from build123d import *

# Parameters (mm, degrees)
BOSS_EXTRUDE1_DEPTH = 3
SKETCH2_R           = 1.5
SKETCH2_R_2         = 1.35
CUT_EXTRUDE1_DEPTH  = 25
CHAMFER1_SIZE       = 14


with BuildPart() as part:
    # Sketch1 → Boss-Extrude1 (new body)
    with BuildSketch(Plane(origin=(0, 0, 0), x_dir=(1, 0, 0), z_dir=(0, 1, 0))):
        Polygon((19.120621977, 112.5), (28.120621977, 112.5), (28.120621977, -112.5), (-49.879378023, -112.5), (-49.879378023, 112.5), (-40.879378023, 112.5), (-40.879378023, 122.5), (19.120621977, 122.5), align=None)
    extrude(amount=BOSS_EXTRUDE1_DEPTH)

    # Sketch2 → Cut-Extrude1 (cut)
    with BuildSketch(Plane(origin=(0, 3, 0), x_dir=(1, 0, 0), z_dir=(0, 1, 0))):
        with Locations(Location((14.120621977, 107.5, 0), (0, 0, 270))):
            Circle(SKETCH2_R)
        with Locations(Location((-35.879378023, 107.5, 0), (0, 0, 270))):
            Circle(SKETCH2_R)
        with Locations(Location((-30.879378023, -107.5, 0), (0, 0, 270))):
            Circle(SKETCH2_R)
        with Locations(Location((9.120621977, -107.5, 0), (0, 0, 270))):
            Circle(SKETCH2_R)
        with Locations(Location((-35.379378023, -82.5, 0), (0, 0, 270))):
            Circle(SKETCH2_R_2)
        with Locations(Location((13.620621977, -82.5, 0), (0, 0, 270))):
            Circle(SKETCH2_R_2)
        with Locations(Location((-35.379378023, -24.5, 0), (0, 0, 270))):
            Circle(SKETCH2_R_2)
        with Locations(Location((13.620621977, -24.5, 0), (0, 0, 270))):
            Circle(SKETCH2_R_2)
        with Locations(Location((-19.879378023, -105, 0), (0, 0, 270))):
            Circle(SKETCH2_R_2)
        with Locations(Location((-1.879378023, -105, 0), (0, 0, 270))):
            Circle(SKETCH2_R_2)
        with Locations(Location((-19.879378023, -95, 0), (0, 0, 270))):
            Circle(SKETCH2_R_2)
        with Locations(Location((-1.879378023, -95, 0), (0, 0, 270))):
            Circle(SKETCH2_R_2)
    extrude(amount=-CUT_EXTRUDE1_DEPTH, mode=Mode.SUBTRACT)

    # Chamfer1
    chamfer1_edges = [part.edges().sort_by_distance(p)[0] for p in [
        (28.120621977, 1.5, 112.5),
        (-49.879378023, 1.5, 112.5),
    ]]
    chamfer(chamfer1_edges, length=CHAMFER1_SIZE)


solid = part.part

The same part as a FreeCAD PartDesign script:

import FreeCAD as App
import Part
import Sketcher
from FreeCAD import Vector


def edges_at(feature, points):
    """Names of the edges that pass closest to the given points."""
    edges = feature.Shape.Edges
    near = lambda p: min(range(len(edges)), key=lambda i: edges[i].distToShape(Part.Vertex(*p))[0])
    return sorted({f"Edge{near(p) + 1}" for p in points})

doc = App.newDocument("Part")
body = doc.addObject("PartDesign::Body", "Body")

sketch1 = body.newObject("Sketcher::SketchObject", "Sketch")
sketch1.AttachmentSupport = (doc.getObject("XZ_Plane"), [""])
sketch1.MapMode = "FlatFace"
sketch1.addGeometry(Part.LineSegment(Vector(28, -112, 0), Vector(19, -112, 0)), False)
sketch1.addGeometry(Part.LineSegment(Vector(19, -112, 0), Vector(19, -122, 0)), False)
sketch1.addGeometry(Part.LineSegment(Vector(19, -122, 0), Vector(-41, -122, 0)), False)
sketch1.addGeometry(Part.LineSegment(Vector(-41, -122, 0), Vector(-41, -112, 0)), False)
sketch1.addGeometry(Part.LineSegment(Vector(-41, -112, 0), Vector(-50, -112, 0)), False)
sketch1.addGeometry(Part.LineSegment(Vector(-50, -112, 0), Vector(-50, 112, 0)), False)
sketch1.addGeometry(Part.LineSegment(Vector(-50, 112, 0), Vector(28, 112, 0)), False)
sketch1.addGeometry(Part.LineSegment(Vector(28, 112, 0), Vector(28, -112, 0)), False)
sketch1.addConstraint(Sketcher.Constraint("Coincident", 0, 2, 1, 1))
sketch1.addConstraint(Sketcher.Constraint("Coincident", 1, 2, 2, 1))
sketch1.addConstraint(Sketcher.Constraint("Coincident", 2, 2, 3, 1))
sketch1.addConstraint(Sketcher.Constraint("Coincident", 3, 2, 4, 1))
sketch1.addConstraint(Sketcher.Constraint("Coincident", 4, 2, 5, 1))
sketch1.addConstraint(Sketcher.Constraint("Coincident", 5, 2, 6, 1))
sketch1.addConstraint(Sketcher.Constraint("Coincident", 6, 2, 7, 1))
sketch1.addConstraint(Sketcher.Constraint("Coincident", 7, 2, 0, 1))
sketch1.addConstraint(Sketcher.Constraint("Horizontal", 0))
sketch1.addConstraint(Sketcher.Constraint("Vertical", 1))
sketch1.addConstraint(Sketcher.Constraint("Horizontal", 2))
sketch1.addConstraint(Sketcher.Constraint("Vertical", 3))
sketch1.addConstraint(Sketcher.Constraint("Horizontal", 4))
sketch1.addConstraint(Sketcher.Constraint("Vertical", 5))
sketch1.addConstraint(Sketcher.Constraint("Horizontal", 6))
sketch1.addConstraint(Sketcher.Constraint("Vertical", 7))
sketch1.addConstraint(Sketcher.Constraint("Horizontal", 0, 2, 3, 2))
sketch1.addConstraint(Sketcher.Constraint("Equal", 0, 4))
sketch1.addConstraint(Sketcher.Constraint("DistanceX", 0, 2, 0, 1, 9.0))
sketch1.addConstraint(Sketcher.Constraint("DistanceX", 2, 2, 2, 1, 60.0))
sketch1.addConstraint(Sketcher.Constraint("DistanceY", 1, 2, 1, 1, 10.0))
sketch1.addConstraint(Sketcher.Constraint("DistanceY", 5, 1, 5, 2, 225.0))
sketch1.addConstraint(Sketcher.Constraint("DistanceY", 0, 2, -1, 1, 112.5))
sketch1.addConstraint(Sketcher.Constraint("DistanceX", -1, 1, 0, 2, 19.120622))
pad1 = body.newObject("PartDesign::Pad", "Pad")
pad1.Profile = sketch1
pad1.Length = 3
pad1.Reversed = True

sketch2 = body.newObject("Sketcher::SketchObject", "Sketch001")
sketch2.AttachmentSupport = (doc.getObject("XZ_Plane"), [""])
sketch2.MapMode = "FlatFace"
sketch2.AttachmentOffset = App.Placement(Vector(0, 0, -3), App.Rotation())
sketch2.addGeometry(Part.Circle(Vector(14.1, -107.5, 0), Vector(0, 0, 1), 1.5), False)
sketch2.addGeometry(Part.Circle(Vector(-35.9, -107.5, 0), Vector(0, 0, 1), 1.5), False)
sketch2.addGeometry(Part.Circle(Vector(-30.9, 107.5, 0), Vector(0, 0, 1), 1.5), False)
sketch2.addGeometry(Part.Circle(Vector(9.1, 107.5, 0), Vector(0, 0, 1), 1.5), False)
sketch2.addGeometry(Part.Circle(Vector(-35.4, 82.5, 0), Vector(0, 0, 1), 1.4), False)
sketch2.addGeometry(Part.Circle(Vector(13.6, 82.5, 0), Vector(0, 0, 1), 1.4), False)
sketch2.addGeometry(Part.Circle(Vector(-35.4, 24.5, 0), Vector(0, 0, 1), 1.4), False)
sketch2.addGeometry(Part.Circle(Vector(13.6, 24.5, 0), Vector(0, 0, 1), 1.4), False)
sketch2.addGeometry(Part.Circle(Vector(-19.9, 105, 0), Vector(0, 0, 1), 1.4), False)
sketch2.addGeometry(Part.Circle(Vector(-1.9, 105, 0), Vector(0, 0, 1), 1.4), False)
sketch2.addGeometry(Part.Circle(Vector(-19.9, 95, 0), Vector(0, 0, 1), 1.4), False)
sketch2.addGeometry(Part.Circle(Vector(-1.9, 95, 0), Vector(0, 0, 1), 1.4), False)
sketch2.addConstraint(Sketcher.Constraint("Equal", 0, 1))
sketch2.addConstraint(Sketcher.Constraint("Equal", 1, 2))
sketch2.addConstraint(Sketcher.Constraint("Equal", 2, 3))
sketch2.addConstraint(Sketcher.Constraint("Equal", 4, 5))
sketch2.addConstraint(Sketcher.Constraint("Equal", 5, 6))
sketch2.addConstraint(Sketcher.Constraint("Equal", 6, 7))
sketch2.addConstraint(Sketcher.Constraint("Equal", 7, 8))
sketch2.addConstraint(Sketcher.Constraint("Equal", 8, 9))
sketch2.addConstraint(Sketcher.Constraint("Equal", 9, 10))
sketch2.addConstraint(Sketcher.Constraint("Equal", 10, 11))
sketch2.addConstraint(Sketcher.Constraint("Horizontal", 0, 3, 1, 3))
sketch2.addConstraint(Sketcher.Constraint("Horizontal", 2, 3, 3, 3))
sketch2.addConstraint(Sketcher.Constraint("Horizontal", 4, 3, 5, 3))
sketch2.addConstraint(Sketcher.Constraint("Horizontal", 6, 3, 7, 3))
sketch2.addConstraint(Sketcher.Constraint("Horizontal", 8, 3, 9, 3))
sketch2.addConstraint(Sketcher.Constraint("Horizontal", 10, 3, 11, 3))
sketch2.addConstraint(Sketcher.Constraint("Vertical", 4, 3, 6, 3))
sketch2.addConstraint(Sketcher.Constraint("Vertical", 5, 3, 7, 3))
sketch2.addConstraint(Sketcher.Constraint("Vertical", 8, 3, 10, 3))
sketch2.addConstraint(Sketcher.Constraint("Vertical", 9, 3, 11, 3))
sketch2.addConstraint(Sketcher.Constraint("Diameter", 0, 3.0))
sketch2.addConstraint(Sketcher.Constraint("Diameter", 4, 2.7))
sketch2.addConstraint(Sketcher.Constraint("DistanceY", -1, 1, 8, 3, 105.0))
sketch2.addConstraint(Sketcher.Constraint("DistanceY", -1, 1, 10, 3, 95.0))
sketch2.addConstraint(Sketcher.Constraint("DistanceX", 1, 3, 0, 3, 50.0))
sketch2.addConstraint(Sketcher.Constraint("DistanceX", 1, 3, 2, 3, 5.0))
sketch2.addConstraint(Sketcher.Constraint("DistanceY", 1, 3, 2, 3, 215.0))
sketch2.addConstraint(Sketcher.Constraint("DistanceX", 2, 3, 3, 3, 40.0))
sketch2.addConstraint(Sketcher.Constraint("DistanceY", 4, 3, 2, 3, 25.0))
sketch2.addConstraint(Sketcher.Constraint("DistanceX", 4, 3, 5, 3, 49.0))
sketch2.addConstraint(Sketcher.Constraint("DistanceY", 6, 3, 4, 3, 58.0))
sketch2.addConstraint(Sketcher.Constraint("DistanceX", 2, 3, 8, 3, 11.0))
sketch2.addConstraint(Sketcher.Constraint("DistanceX", 9, 3, 3, 3, 11.0))
sketch2.addConstraint(Sketcher.Constraint("DistanceY", 0, 3, -1, 1, 107.5))
sketch2.addConstraint(Sketcher.Constraint("DistanceX", 4, 3, 2, 3, 4.5))
sketch2.addConstraint(Sketcher.Constraint("DistanceX", -1, 1, 0, 3, 14.120622))
pocket1 = body.newObject("PartDesign::Pocket", "Pocket")
pocket1.Profile = sketch2
pocket1.Length = 25
pocket1.Reversed = True
doc.recompute()

chamfer = body.newObject("PartDesign::Chamfer", "Chamfer")
chamfer.Base = (pocket1, edges_at(pocket1, [(28.121, 1.5, 112.5), (-49.879, 1.5, 112.5)]))
chamfer.Size = 14

doc.recompute()
